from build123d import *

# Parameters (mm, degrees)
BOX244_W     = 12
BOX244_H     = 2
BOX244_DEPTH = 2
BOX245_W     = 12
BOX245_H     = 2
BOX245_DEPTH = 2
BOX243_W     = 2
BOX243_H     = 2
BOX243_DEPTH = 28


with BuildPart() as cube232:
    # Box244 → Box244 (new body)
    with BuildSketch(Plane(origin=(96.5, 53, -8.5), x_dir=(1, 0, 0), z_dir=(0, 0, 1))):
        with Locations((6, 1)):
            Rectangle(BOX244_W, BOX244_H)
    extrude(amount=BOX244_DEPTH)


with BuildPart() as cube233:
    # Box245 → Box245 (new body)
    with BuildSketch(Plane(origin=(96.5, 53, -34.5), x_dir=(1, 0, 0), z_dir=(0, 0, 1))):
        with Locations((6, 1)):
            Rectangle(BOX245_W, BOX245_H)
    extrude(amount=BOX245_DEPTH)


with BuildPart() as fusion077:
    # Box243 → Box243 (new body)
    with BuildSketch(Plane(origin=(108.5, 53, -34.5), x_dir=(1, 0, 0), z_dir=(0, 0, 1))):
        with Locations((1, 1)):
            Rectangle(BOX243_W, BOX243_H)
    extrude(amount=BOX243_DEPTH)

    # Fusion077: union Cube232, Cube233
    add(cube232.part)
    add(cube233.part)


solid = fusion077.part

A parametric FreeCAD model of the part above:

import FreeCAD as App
import Part
import Sketcher
from FreeCAD import Vector
Q = App.Units.Quantity

doc = App.newDocument("Part")
body = doc.addObject("PartDesign::Body", "Body")

# Sketch on XY plane
sketch1 = body.newObject("Sketcher::SketchObject", "Sketch")
sketch1.AttachmentSupport = (doc.getObject("XY_Plane"), [""])
sketch1.MapMode = "FlatFace"
sketch1.AttachmentOffset = App.Placement(Vector(0, 0, -8.5), App.Rotation())
sketch1.addGeometry([
    Part.LineSegment(Vector(96.5, 55, 0), Vector(96.5, 53, 0)),
    Part.LineSegment(Vector(96.5, 53, 0), Vector(108.5, 53, 0)),
    Part.LineSegment(Vector(108.5, 53, 0), Vector(108.5, 55, 0)),
    Part.LineSegment(Vector(108.5, 55, 0), Vector(96.5, 55, 0)),
], False)
sketch1.addConstraint([
    Sketcher.Constraint("Coincident", 0, 2, 1, 1),
    Sketcher.Constraint("Coincident", 1, 2, 2, 1),
    Sketcher.Constraint("Coincident", 2, 2, 3, 1),
    Sketcher.Constraint("Coincident", 3, 2, 0, 1),
    Sketcher.Constraint("Vertical", 0),
    Sketcher.Constraint("Horizontal", 1),
    Sketcher.Constraint("Vertical", 2),
    Sketcher.Constraint("Horizontal", 3),
    Sketcher.Constraint("DistanceX", 1, 1, 1, 2, Q("12 mm")),
    Sketcher.Constraint("DistanceY", 0, 2, 0, 1, Q("2 mm")),
    Sketcher.Constraint("DistanceY", -1, 1, 0, 2, Q("53 mm")),
    Sketcher.Constraint("DistanceX", -1, 1, 0, 2, Q("96.5 mm")),
])
pad1 = body.newObject("PartDesign::Pad", "Pad")
pad1.Profile = sketch1
pad1.Length = 2
body2 = doc.addObject("PartDesign::Body", "Body001")

# Sketch on XY plane
sketch2 = body2.newObject("Sketcher::SketchObject", "Sketch001")
sketch2.AttachmentSupport = (doc.getObject("XY_Plane001"), [""])
sketch2.MapMode = "FlatFace"
sketch2.AttachmentOffset = App.Placement(Vector(0, 0, -34.5), App.Rotation())
sketch2.addGeometry([
    Part.LineSegment(Vector(96.5, 55, 0), Vector(96.5, 53, 0)),
    Part.LineSegment(Vector(96.5, 53, 0), Vector(108.5, 53, 0)),
    Part.LineSegment(Vector(108.5, 53, 0), Vector(108.5, 55, 0)),
    Part.LineSegment(Vector(108.5, 55, 0), Vector(96.5, 55, 0)),
], False)
sketch2.addConstraint([
    Sketcher.Constraint("Coincident", 0, 2, 1, 1),
    Sketcher.Constraint("Coincident", 1, 2, 2, 1),
    Sketcher.Constraint("Coincident", 2, 2, 3, 1),
    Sketcher.Constraint("Coincident", 3, 2, 0, 1),
    Sketcher.Constraint("Vertical", 0),
    Sketcher.Constraint("Horizontal", 1),
    Sketcher.Constraint("Vertical", 2),
    Sketcher.Constraint("Horizontal", 3),
    Sketcher.Constraint("DistanceX", 1, 1, 1, 2, Q("12 mm")),
    Sketcher.Constraint("DistanceY", 0, 2, 0, 1, Q("2 mm")),
    Sketcher.Constraint("DistanceY", -1, 1, 0, 2, Q("53 mm")),
    Sketcher.Constraint("DistanceX", -1, 1, 0, 2, Q("96.5 mm")),
])
pad2 = body2.newObject("PartDesign::Pad", "Pad001")
pad2.Profile = sketch2
pad2.Length = 2
body3 = doc.addObject("PartDesign::Body", "Body002")

# Sketch on XY plane
sketch3 = body3.newObject("Sketcher::SketchObject", "Sketch002")
sketch3.AttachmentSupport = (doc.getObject("XY_Plane002"), [""])
sketch3.MapMode = "FlatFace"
sketch3.AttachmentOffset = App.Placement(Vector(0, 0, -34.5), App.Rotation())
sketch3.addGeometry([
    Part.LineSegment(Vector(108.5, 55, 0), Vector(108.5, 53, 0)),
    Part.LineSegment(Vector(108.5, 53, 0), Vector(110.5, 53, 0)),
    Part.LineSegment(Vector(110.5, 53, 0), Vector(110.5, 55, 0)),
    Part.LineSegment(Vector(110.5, 55, 0), Vector(108.5, 55, 0)),
], False)
sketch3.addConstraint([
    Sketcher.Constraint("Coincident", 0, 2, 1, 1),
    Sketcher.Constraint("Coincident", 1, 2, 2, 1),
    Sketcher.Constraint("Coincident", 2, 2, 3, 1),
    Sketcher.Constraint("Coincident", 3, 2, 0, 1),
    Sketcher.Constraint("Vertical", 0),
    Sketcher.Constraint("Horizontal", 1),
    Sketcher.Constraint("Vertical", 2),
    Sketcher.Constraint("Horizontal", 3),
    Sketcher.Constraint("Equal", 3, 0),
    Sketcher.Constraint("DistanceX", 1, 1, 1, 2, Q("2 mm")),
    Sketcher.Constraint("DistanceY", -1, 1, 0, 2, Q("53 mm")),
    Sketcher.Constraint("DistanceX", -1, 1, 0, 2, Q("108.5 mm")),
])
pad3 = body3.newObject("PartDesign::Pad", "Pad002")
pad3.Profile = sketch3
pad3.Length = 28
doc.recompute()

boolean = body3.newObject("PartDesign::Boolean", "Boolean")
boolean.Type = "Fuse"
boolean.addObjects([body])
doc.recompute()

boolean2 = body3.newObject("PartDesign::Boolean", "Boolean001")
boolean2.Type = "Fuse"
boolean2.addObjects([body2])

doc.recompute()
